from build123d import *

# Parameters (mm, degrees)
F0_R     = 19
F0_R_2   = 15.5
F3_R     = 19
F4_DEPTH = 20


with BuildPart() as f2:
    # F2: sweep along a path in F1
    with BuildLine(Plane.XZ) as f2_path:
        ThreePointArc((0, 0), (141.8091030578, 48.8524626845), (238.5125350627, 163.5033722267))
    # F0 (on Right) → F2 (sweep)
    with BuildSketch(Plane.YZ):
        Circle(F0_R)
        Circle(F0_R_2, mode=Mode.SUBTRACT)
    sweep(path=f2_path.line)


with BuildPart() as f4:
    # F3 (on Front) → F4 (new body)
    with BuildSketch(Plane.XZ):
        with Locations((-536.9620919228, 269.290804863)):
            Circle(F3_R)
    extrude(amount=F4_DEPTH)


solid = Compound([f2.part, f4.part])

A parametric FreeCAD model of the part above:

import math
import FreeCAD as App
import Part
import Sketcher
Q = App.Units.Quantity

doc = App.newDocument("Part")
body = doc.addObject("PartDesign::Body", "Body")

sketch1 = body.newObject("Sketcher::SketchObject", "Sketch")
sketch1.AttachmentSupport = (doc.getObject("YZ_Plane"), [""])
sketch1.MapMode = "FlatFace"
sketch1.addGeometry([
    Part.Circle(App.Vector(0, 0, 0), App.Vector(0, 0, 1), 19),
    Part.Circle(App.Vector(0, 0, 0), App.Vector(0, 0, 1), 16),
], False)
sketch1.addConstraint([
    Sketcher.Constraint("Coincident", 0, 3, -1, 1),
    Sketcher.Constraint("Coincident", 1, 3, -1, 1),
    Sketcher.Constraint("Diameter", 0, Q("38 mm")),
    Sketcher.Constraint("Diameter", 1, Q("31 mm")),
])

sketch2 = body.newObject("Sketcher::SketchObject", "Sketch001")
sketch2.AttachmentSupport = (doc.getObject("XZ_Plane"), [""])
sketch2.MapMode = "FlatFace"
sketch2.addGeometry(Part.ArcOfCircle(Part.Circle(App.Vector(-18, 281, 0), App.Vector(0, 0, 1), 282), math.radians(-86), math.radians(-25)), False)
sketch2.addConstraint([
    Sketcher.Constraint("Coincident", 0, 1, -1, 1),
    Sketcher.Constraint("Radius", 0, Q("282 mm")),
    Sketcher.Constraint("DistanceX", 0, 3, -1, 1, Q("17.638 mm")),
    Sketcher.Constraint("DistanceX", -1, 1, 0, 2, Q("238.512535 mm")),
])
doc.recompute()

additivepipe = body.newObject("PartDesign::AdditivePipe", "AdditivePipe")
additivepipe.Profile = sketch1
additivepipe.Spine = (sketch2, ["Edge1"])
body2 = doc.addObject("PartDesign::Body", "Body001")

sketch3 = body2.newObject("Sketcher::SketchObject", "Sketch002")
sketch3.AttachmentSupport = (doc.getObject("XZ_Plane001"), [""])
sketch3.MapMode = "FlatFace"
sketch3.addGeometry(Part.Circle(App.Vector(-537, 269, 0), App.Vector(0, 0, 1), 19), False)
sketch3.addConstraint([
    Sketcher.Constraint("Diameter", 0, Q("38 mm")),
    Sketcher.Constraint("DistanceX", 0, 3, -1, 1, Q("536.962092 mm")),
    Sketcher.Constraint("DistanceY", -1, 1, 0, 3, Q("269.290805 mm")),
])
pad1 = body2.newObject("PartDesign::Pad", "Pad")
pad1.Profile = sketch3
pad1.Length = 20

doc.recompute()
